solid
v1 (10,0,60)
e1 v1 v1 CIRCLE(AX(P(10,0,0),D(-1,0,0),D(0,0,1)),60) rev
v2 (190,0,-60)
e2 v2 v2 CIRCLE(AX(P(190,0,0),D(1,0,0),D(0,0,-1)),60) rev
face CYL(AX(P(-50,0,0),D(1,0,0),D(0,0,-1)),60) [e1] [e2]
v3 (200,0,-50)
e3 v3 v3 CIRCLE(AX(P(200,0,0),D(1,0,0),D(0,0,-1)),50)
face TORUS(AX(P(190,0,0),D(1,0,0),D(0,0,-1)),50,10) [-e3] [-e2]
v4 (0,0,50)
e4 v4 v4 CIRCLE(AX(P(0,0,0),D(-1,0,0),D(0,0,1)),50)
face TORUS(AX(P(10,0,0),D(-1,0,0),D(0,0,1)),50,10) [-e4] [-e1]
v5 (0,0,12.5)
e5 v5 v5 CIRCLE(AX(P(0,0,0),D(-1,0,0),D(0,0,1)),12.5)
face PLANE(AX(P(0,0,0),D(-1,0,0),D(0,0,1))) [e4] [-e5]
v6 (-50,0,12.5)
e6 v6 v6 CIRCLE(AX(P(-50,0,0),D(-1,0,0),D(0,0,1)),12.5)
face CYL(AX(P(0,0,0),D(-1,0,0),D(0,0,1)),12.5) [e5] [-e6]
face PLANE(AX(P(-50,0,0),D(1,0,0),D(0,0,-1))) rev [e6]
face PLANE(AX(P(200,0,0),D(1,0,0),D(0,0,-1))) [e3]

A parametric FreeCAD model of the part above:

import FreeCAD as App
import Part
import Sketcher
Q = App.Units.Quantity


def edges_at(feature, points):
    """Names of the edges that pass closest to the given points."""
    edges = feature.Shape.Edges
    near = lambda p: min(range(len(edges)), key=lambda i: edges[i].distToShape(Part.Vertex(*p))[0])
    return sorted({f"Edge{near(p) + 1}" for p in points})

doc = App.newDocument("Part")
body = doc.addObject("PartDesign::Body", "Body")

# Sketch on YZ plane
sketch1 = body.newObject("Sketcher::SketchObject", "Sketch")
sketch1.AttachmentSupport = (doc.getObject("YZ_Plane"), [""])
sketch1.MapMode = "FlatFace"
sketch1.addGeometry(Part.Circle(App.Vector(0, 0, 0), App.Vector(0, 0, 1), 60), False)
sketch1.addConstraint(Sketcher.Constraint("Coincident", 0, 3, -1, 1))
sketch1.addConstraint(Sketcher.Constraint("Diameter", 0, Q("120 mm")))
pad1 = body.newObject("PartDesign::Pad", "Pad")
pad1.Profile = sketch1
pad1.Type = "TwoLengths"
pad1.Length = 200
pad1.Length2 = 50

# Sketch on YZ plane
sketch2 = body.newObject("Sketcher::SketchObject", "Sketch001")
sketch2.AttachmentSupport = (doc.getObject("YZ_Plane"), [""])
sketch2.MapMode = "FlatFace"
sketch2.AttachmentOffset = App.Placement(App.Vector(0, 0, -50), App.Rotation())
sketch2.addGeometry(Part.Circle(App.Vector(0, 0, 0), App.Vector(0, 0, 1), 75), False)
sketch2.addGeometry(Part.Circle(App.Vector(0, 0, 0), App.Vector(0, 0, 1), 12.5), False)
sketch2.addConstraint(Sketcher.Constraint("Coincident", 0, 3, -1, 1))
sketch2.addConstraint(Sketcher.Constraint("Coincident", 1, 3, -1, 1))
sketch2.addConstraint(Sketcher.Constraint("Diameter", 0, Q("150 mm")))
sketch2.addConstraint(Sketcher.Constraint("Diameter", 1, Q("25 mm")))
pocket1 = body.newObject("PartDesign::Pocket", "Pocket")
pocket1.Profile = sketch2
pocket1.Length = 50
pocket1.Reversed = True
doc.recompute()

fillet = body.newObject("PartDesign::Fillet", "Fillet")
fillet.Base = (pocket1, edges_at(pocket1, [(0, 0, 60), (200, 0, 60)]))
fillet.Radius = 10

doc.recompute()
